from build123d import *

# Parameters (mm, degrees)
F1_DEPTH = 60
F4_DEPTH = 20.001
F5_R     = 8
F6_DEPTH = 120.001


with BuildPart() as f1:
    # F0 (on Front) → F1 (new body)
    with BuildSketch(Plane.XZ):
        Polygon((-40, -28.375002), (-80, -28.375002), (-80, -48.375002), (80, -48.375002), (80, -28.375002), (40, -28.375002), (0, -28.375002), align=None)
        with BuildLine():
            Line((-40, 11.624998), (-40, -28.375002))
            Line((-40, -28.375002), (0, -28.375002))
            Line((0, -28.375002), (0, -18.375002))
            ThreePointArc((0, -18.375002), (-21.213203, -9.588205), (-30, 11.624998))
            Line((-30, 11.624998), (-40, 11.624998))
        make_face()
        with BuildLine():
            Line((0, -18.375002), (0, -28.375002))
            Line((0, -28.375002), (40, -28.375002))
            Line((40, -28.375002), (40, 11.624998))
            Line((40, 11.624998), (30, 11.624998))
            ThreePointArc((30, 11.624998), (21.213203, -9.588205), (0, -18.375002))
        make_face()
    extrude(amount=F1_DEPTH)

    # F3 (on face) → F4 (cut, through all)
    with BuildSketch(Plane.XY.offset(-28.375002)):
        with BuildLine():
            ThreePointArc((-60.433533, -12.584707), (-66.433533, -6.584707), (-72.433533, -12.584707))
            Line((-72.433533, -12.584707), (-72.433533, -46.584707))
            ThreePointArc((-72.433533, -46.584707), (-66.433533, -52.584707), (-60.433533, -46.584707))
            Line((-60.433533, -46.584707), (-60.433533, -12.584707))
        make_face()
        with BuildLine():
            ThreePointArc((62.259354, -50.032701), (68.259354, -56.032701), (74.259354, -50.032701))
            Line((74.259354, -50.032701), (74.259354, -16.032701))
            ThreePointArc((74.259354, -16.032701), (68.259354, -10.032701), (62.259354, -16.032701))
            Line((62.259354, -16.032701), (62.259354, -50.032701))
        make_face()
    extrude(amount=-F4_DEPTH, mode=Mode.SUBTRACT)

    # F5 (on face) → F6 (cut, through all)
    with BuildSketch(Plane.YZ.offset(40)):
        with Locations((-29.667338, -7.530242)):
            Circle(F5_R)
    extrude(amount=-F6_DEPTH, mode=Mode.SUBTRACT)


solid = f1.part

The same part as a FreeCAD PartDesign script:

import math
import FreeCAD as App
import Part
import Sketcher

V = App.Vector

doc = App.newDocument("Part")
body = doc.addObject("PartDesign::Body", "Body")

sketch1 = doc.addObject("Sketcher::SketchObject", "Sketch")
body.addObject(sketch1)
sketch1.AttachmentSupport = (doc.XZ_Plane, [""])
sketch1.MapMode = "FlatFace"
sketch1.addGeometry(Part.LineSegment(V(-80, -28, 0), V(-80, -48, 0)), False)
sketch1.addGeometry(Part.LineSegment(V(-80, -48, 0), V(80, -48, 0)), False)
sketch1.addGeometry(Part.LineSegment(V(80, -48, 0), V(80, -28, 0)), False)
sketch1.addGeometry(Part.LineSegment(V(80, -28, 0), V(40, -28, 0)), False)
sketch1.addGeometry(Part.LineSegment(V(40, -28, 0), V(40, 12, 0)), False)
sketch1.addGeometry(Part.LineSegment(V(40, 12, 0), V(30, 12, 0)), False)
sketch1.addGeometry(Part.ArcOfCircle(Part.Circle(V(0, 12, 0), V(0, 0, 1), 30), math.radians(-90), math.radians(0)), False)
sketch1.addGeometry(Part.ArcOfCircle(Part.Circle(V(0, 12, 0), V(0, 0, 1), 30), math.radians(-180), math.radians(-90)), False)
sketch1.addGeometry(Part.LineSegment(V(-30, 12, 0), V(-40, 12, 0)), False)
sketch1.addGeometry(Part.LineSegment(V(-40, 12, 0), V(-40, -28, 0)), False)
sketch1.addGeometry(Part.LineSegment(V(-40, -28, 0), V(-80, -28, 0)), False)
sketch1.addConstraint(Sketcher.Constraint("Coincident", 0, 2, 1, 1))
sketch1.addConstraint(Sketcher.Constraint("Coincident", 1, 2, 2, 1))
sketch1.addConstraint(Sketcher.Constraint("Coincident", 2, 2, 3, 1))
sketch1.addConstraint(Sketcher.Constraint("Coincident", 3, 2, 4, 1))
sketch1.addConstraint(Sketcher.Constraint("Coincident", 4, 2, 5, 1))
sketch1.addConstraint(Sketcher.Constraint("Coincident", 5, 2, 6, 2))
sketch1.addConstraint(Sketcher.Constraint("Tangent", 6, 1, 7, 2))
sketch1.addConstraint(Sketcher.Constraint("Coincident", 7, 1, 8, 1))
sketch1.addConstraint(Sketcher.Constraint("Coincident", 8, 2, 9, 1))
sketch1.addConstraint(Sketcher.Constraint("Coincident", 9, 2, 10, 1))
sketch1.addConstraint(Sketcher.Constraint("Coincident", 10, 2, 0, 1))
sketch1.addConstraint(Sketcher.Constraint("Vertical", 0))
sketch1.addConstraint(Sketcher.Constraint("Horizontal", 1))
sketch1.addConstraint(Sketcher.Constraint("Vertical", 2))
sketch1.addConstraint(Sketcher.Constraint("Horizontal", 3))
sketch1.addConstraint(Sketcher.Constraint("Vertical", 4))
sketch1.addConstraint(Sketcher.Constraint("Horizontal", 5))
sketch1.addConstraint(Sketcher.Constraint("Horizontal", 8))
sketch1.addConstraint(Sketcher.Constraint("Vertical", 9))
sketch1.addConstraint(Sketcher.Constraint("Horizontal", 10))
sketch1.addConstraint(Sketcher.Constraint("Equal", 6, 7))
sketch1.addConstraint(Sketcher.Constraint("Symmetric", 5, 2, 7, 1, -2))
sketch1.addConstraint(Sketcher.Constraint("Symmetric", 3, 2, 9, 2, -2))
sketch1.addConstraint(Sketcher.Constraint("PointOnObject", 6, 1, -2))
sketch1.addConstraint(Sketcher.Constraint("Horizontal", 7, 3, 4, 2))
sketch1.addConstraint(Sketcher.Constraint("Equal", 3, 10))
sketch1.addConstraint(Sketcher.Constraint("Equal", 10, 4))
sketch1.addConstraint(Sketcher.Constraint("Radius", 6, 30.000001))
sketch1.addConstraint(Sketcher.Constraint("DistanceX", 1, 1, 1, 2, 160.0))
sketch1.addConstraint(Sketcher.Constraint("DistanceX", 3, 2, 3, 1, 40.0))
sketch1.addConstraint(Sketcher.Constraint("DistanceY", 0, 2, 0, 1, 20.0))
sketch1.addConstraint(Sketcher.Constraint("DistanceY", -1, 1, 6, 3, 11.624999))
pad1 = doc.addObject("PartDesign::Pad", "Pad")
body.addObject(pad1)
pad1.Profile = sketch1
pad1.Length = 60

sketch2 = doc.addObject("Sketcher::SketchObject", "Sketch001")
body.addObject(sketch2)
sketch2.AttachmentSupport = (doc.XY_Plane, [""])
sketch2.MapMode = "FlatFace"
sketch2.AttachmentOffset = App.Placement(V(0, 0, -28.375002), App.Rotation())
sketch2.addGeometry(Part.ArcOfCircle(Part.Circle(V(-66, -13, 0), V(0, 0, 1), 6), math.radians(0), math.radians(180)), False)
sketch2.addGeometry(Part.LineSegment(V(-72, -13, 0), V(-72, -47, 0)), False)
sketch2.addGeometry(Part.ArcOfCircle(Part.Circle(V(-66, -47, 0), V(0, 0, 1), 6), math.radians(180), math.radians(360)), False)
sketch2.addGeometry(Part.LineSegment(V(-60, -47, 0), V(-60, -13, 0)), False)
sketch2.addGeometry(Part.ArcOfCircle(Part.Circle(V(68, -50, 0), V(0, 0, 1), 6), math.radians(180), math.radians(360)), False)
sketch2.addGeometry(Part.LineSegment(V(74, -50, 0), V(74, -16, 0)), False)
sketch2.addGeometry(Part.ArcOfCircle(Part.Circle(V(68, -16, 0), V(0, 0, 1), 6), math.radians(0), math.radians(180)), False)
sketch2.addGeometry(Part.LineSegment(V(62, -16, 0), V(62, -50, 0)), False)
sketch2.addConstraint(Sketcher.Constraint("Tangent", 0, 2, 1, 1))
sketch2.addConstraint(Sketcher.Constraint("Tangent", 1, 2, 2, 1))
sketch2.addConstraint(Sketcher.Constraint("Tangent", 2, 2, 3, 1))
sketch2.addConstraint(Sketcher.Constraint("Tangent", 3, 2, 0, 1))
sketch2.addConstraint(Sketcher.Constraint("Tangent", 4, 2, 5, 1))
sketch2.addConstraint(Sketcher.Constraint("Tangent", 5, 2, 6, 1))
sketch2.addConstraint(Sketcher.Constraint("Tangent", 6, 2, 7, 1))
sketch2.addConstraint(Sketcher.Constraint("Tangent", 7, 2, 4, 1))
sketch2.addConstraint(Sketcher.Constraint("Vertical", 1))
sketch2.addConstraint(Sketcher.Constraint("Vertical", 3))
sketch2.addConstraint(Sketcher.Constraint("Vertical", 5))
sketch2.addConstraint(Sketcher.Constraint("Vertical", 7))
sketch2.addConstraint(Sketcher.Constraint("Equal", 2, 4))
sketch2.addConstraint(Sketcher.Constraint("Equal", 3, 5))
sketch2.addConstraint(Sketcher.Constraint("Radius", 0, 6.0))
sketch2.addConstraint(Sketcher.Constraint("DistanceY", 1, 2, 1, 1, 34.0))
sketch2.addConstraint(Sketcher.Constraint("DistanceY", 4, 3, -1, 1, 50.032701))
sketch2.addConstraint(Sketcher.Constraint("DistanceX", 0, 3, -1, 1, 66.433533))
sketch2.addConstraint(Sketcher.Constraint("DistanceY", 0, 3, -1, 1, 12.584707))
sketch2.addConstraint(Sketcher.Constraint("DistanceX", -1, 1, 4, 3, 68.259354))
pocket1 = doc.addObject("PartDesign::Pocket", "Pocket")
body.addObject(pocket1)
pocket1.Profile = sketch2
pocket1.Type = "ThroughAll"

sketch3 = doc.addObject("Sketcher::SketchObject", "Sketch002")
body.addObject(sketch3)
sketch3.AttachmentSupport = (doc.YZ_Plane, [""])
sketch3.MapMode = "FlatFace"
sketch3.AttachmentOffset = App.Placement(V(0, 0, 40), App.Rotation())
sketch3.addGeometry(Part.Circle(V(-30, -8, 0), V(0, 0, 1), 8), False)
sketch3.addConstraint(Sketcher.Constraint("Diameter", 0, 16.0))
sketch3.addConstraint(Sketcher.Constraint("DistanceX", 0, 3, -1, 1, 29.667338))
sketch3.addConstraint(Sketcher.Constraint("DistanceY", 0, 3, -1, 1, 7.530242))
pocket2 = doc.addObject("PartDesign::Pocket", "Pocket001")
body.addObject(pocket2)
pocket2.Profile = sketch3
pocket2.Type = "ThroughAll"

doc.recompute()
